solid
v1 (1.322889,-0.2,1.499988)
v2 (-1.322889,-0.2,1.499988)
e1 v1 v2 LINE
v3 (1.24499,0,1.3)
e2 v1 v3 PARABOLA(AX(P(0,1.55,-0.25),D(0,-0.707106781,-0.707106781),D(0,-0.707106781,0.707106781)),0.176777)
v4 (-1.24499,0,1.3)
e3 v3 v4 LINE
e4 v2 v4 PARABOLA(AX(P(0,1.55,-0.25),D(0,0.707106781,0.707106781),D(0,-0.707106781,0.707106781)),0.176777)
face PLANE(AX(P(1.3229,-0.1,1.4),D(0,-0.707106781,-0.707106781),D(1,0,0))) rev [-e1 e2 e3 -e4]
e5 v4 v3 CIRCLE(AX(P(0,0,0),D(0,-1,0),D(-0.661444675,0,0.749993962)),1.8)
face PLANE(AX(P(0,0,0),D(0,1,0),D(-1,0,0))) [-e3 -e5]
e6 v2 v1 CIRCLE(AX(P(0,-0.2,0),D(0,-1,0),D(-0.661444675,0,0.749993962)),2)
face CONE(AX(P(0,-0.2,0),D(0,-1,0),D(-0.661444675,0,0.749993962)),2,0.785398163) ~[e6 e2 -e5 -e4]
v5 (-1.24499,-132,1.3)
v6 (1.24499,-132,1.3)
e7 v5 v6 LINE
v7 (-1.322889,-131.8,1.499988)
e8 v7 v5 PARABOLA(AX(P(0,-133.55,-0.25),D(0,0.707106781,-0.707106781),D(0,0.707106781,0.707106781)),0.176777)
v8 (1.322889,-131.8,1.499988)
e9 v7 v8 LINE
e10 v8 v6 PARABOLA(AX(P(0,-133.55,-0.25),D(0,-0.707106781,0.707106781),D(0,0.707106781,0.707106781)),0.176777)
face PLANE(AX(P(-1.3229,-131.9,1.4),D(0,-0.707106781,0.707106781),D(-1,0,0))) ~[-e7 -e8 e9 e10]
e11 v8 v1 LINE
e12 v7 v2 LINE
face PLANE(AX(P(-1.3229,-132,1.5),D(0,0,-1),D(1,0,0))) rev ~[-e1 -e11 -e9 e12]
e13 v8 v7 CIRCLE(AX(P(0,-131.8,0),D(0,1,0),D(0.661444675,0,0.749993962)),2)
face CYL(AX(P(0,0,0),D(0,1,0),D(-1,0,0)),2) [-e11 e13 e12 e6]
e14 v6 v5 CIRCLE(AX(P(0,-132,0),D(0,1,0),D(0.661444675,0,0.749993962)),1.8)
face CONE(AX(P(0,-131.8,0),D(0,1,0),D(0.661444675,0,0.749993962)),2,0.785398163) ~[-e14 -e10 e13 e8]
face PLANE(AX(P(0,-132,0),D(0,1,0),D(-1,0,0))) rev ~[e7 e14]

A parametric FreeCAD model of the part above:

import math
import FreeCAD as App
import Part
import Sketcher


def edges_at(feature, points):
    """Names of the edges that pass closest to the given points."""
    edges = feature.Shape.Edges
    near = lambda p: min(range(len(edges)), key=lambda i: edges[i].distToShape(Part.Vertex(*p))[0])
    return sorted({f"Edge{near(p) + 1}" for p in points})

doc = App.newDocument("Part")
body = doc.addObject("PartDesign::Body", "Body")

sketch1 = body.newObject("Sketcher::SketchObject", "Sketch")
sketch1.AttachmentSupport = (doc.getObject("XZ_Plane"), [""])
sketch1.MapMode = "FlatFace"
sketch1.addGeometry(Part.Circle(App.Vector(0, 0, 0), App.Vector(0, 0, 1), 2), False)
sketch1.addConstraint([
    Sketcher.Constraint("Coincident", 0, 3, -1, 1),
    Sketcher.Constraint("Diameter", 0, 4.0),
])
pad1 = body.newObject("PartDesign::Pad", "Pad")
pad1.Profile = sketch1
pad1.Length = 132

sketch2 = body.newObject("Sketcher::SketchObject", "Sketch001")
sketch2.AttachmentSupport = (doc.getObject("XZ_Plane"), [""])
sketch2.MapMode = "FlatFace"
sketch2.AttachmentOffset = App.Placement(App.Vector(0, 0, 132), App.Rotation())
sketch2.addGeometry([
    Part.LineSegment(App.Vector(-1.3, 1.5, 0), App.Vector(1.3, 1.5, 0)),
    Part.ArcOfCircle(Part.Circle(App.Vector(0, 0, 0), App.Vector(0, 0, 1), 2), math.radians(49), math.radians(131)),
], False)
sketch2.addConstraint([
    Sketcher.Constraint("Coincident", 0, 1, 1, 2),
    Sketcher.Constraint("Coincident", 1, 1, 0, 2),
    Sketcher.Constraint("Horizontal", 0),
    Sketcher.Constraint("Coincident", 1, 3, -1, 1),
    Sketcher.Constraint("Radius", 1, 2.0),
    Sketcher.Constraint("DistanceY", -1, 1, 0, 1, 1.5),
])
pocket1 = body.newObject("PartDesign::Pocket", "Pocket")
pocket1.Profile = sketch2
pocket1.Type = "ThroughAll"
doc.recompute()

chamfer = body.newObject("PartDesign::Chamfer", "Chamfer")
chamfer.Base = (pocket1, edges_at(pocket1, [
    (0, -132, -2),
    (0, -132, 1.5),
    (0, 0, -2),
    (0, 0, 1.5),
]))
chamfer.Size = 0.2

doc.recompute()
